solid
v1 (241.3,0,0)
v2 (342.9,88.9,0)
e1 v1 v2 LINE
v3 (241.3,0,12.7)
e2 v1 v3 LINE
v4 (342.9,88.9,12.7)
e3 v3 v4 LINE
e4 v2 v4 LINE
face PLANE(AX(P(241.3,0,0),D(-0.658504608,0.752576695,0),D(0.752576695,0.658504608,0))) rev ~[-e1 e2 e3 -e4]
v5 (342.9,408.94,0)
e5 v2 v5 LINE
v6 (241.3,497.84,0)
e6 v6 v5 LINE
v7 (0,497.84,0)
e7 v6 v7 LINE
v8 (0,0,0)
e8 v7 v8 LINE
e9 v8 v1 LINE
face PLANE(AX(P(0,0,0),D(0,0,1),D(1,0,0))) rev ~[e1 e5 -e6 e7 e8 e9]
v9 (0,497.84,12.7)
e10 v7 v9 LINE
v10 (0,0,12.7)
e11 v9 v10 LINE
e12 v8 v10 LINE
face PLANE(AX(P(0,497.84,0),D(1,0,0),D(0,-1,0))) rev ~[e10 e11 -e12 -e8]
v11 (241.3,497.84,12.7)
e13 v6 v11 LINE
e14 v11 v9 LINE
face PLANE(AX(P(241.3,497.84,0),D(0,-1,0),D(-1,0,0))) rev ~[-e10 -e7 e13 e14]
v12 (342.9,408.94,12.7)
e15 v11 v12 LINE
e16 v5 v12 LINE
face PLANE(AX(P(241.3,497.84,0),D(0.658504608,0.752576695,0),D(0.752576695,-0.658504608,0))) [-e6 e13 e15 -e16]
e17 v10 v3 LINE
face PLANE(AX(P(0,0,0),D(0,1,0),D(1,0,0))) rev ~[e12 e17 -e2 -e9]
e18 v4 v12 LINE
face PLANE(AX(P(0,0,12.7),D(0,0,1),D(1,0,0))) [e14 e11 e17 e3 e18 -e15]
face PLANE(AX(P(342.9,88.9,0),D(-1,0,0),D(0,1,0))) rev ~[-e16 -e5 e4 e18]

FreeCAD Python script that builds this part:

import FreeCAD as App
import Part
import Sketcher

V = App.Vector
Q = App.Units.Quantity

doc = App.newDocument("Part")
params = doc.addObject("Spreadsheet::Sheet", "Params")
for row, (alias, value) in enumerate([
    ("sketch1_height", "19.6 in"),
    ("pad1_length", "0.5 in"),
], start=1):
    params.set(f"A{row}", alias)
    params.set(f"B{row}", "=" + value)
    params.setAlias(f"B{row}", alias)

body = doc.addObject("PartDesign::Body", "Body")

# Sketch on XY plane
sketch1 = doc.addObject("Sketcher::SketchObject", "Sketch")
body.addObject(sketch1)
sketch1.AttachmentSupport = (doc.XY_Plane, [""])
sketch1.MapMode = "FlatFace"
sketch1.addGeometry([
    Part.LineSegment(V(0, 498, 0), V(0, 0, 0)),  # 0
    Part.LineSegment(V(0, 0, 0), V(241, 0, 0)),  # 1
    Part.LineSegment(V(241, 0, 0), V(343, 89, 0)),  # 2
    Part.LineSegment(V(343, 89, 0), V(343, 409, 0)),  # 3
    Part.LineSegment(V(343, 409, 0), V(241, 498, 0)),  # 4
    Part.LineSegment(V(241, 498, 0), V(0, 498, 0)),  # 5
], False)
sketch1.addConstraint([
    Sketcher.Constraint("Coincident", 0, 2, 1, 1),
    Sketcher.Constraint("Coincident", 1, 2, 2, 1),
    Sketcher.Constraint("Coincident", 2, 2, 3, 1),
    Sketcher.Constraint("Coincident", 3, 2, 4, 1),
    Sketcher.Constraint("Coincident", 4, 2, 5, 1),
    Sketcher.Constraint("Coincident", 5, 2, 0, 1),
    Sketcher.Constraint("Vertical", 0),
    Sketcher.Constraint("Horizontal", 1),
    Sketcher.Constraint("Vertical", 3),
    Sketcher.Constraint("Horizontal", 5),
    Sketcher.Constraint("Coincident", 0, 2, -1, 1),
    Sketcher.Constraint("Vertical", 1, 2, 4, 2),
    Sketcher.Constraint("Equal", 2, 4),
    Sketcher.Constraint("DistanceX", 1, 2, 2, 2, Q("4 in")),
    Sketcher.Constraint("DistanceX", -1, 1, 2, 2, Q("13.5 in")),
    Sketcher.Constraint("DistanceY", -1, 1, 2, 2, Q("3.5 in")),
    Sketcher.Constraint("DistanceY", 0, 2, 0, 1, Q("19.6 in")),
])
sketch1.setExpression("Constraints[16]", "Params.sketch1_height")
pad1 = doc.addObject("PartDesign::Pad", "Pad")
body.addObject(pad1)
pad1.Profile = sketch1
pad1.setExpression("Length", "Params.pad1_length")

doc.recompute()
